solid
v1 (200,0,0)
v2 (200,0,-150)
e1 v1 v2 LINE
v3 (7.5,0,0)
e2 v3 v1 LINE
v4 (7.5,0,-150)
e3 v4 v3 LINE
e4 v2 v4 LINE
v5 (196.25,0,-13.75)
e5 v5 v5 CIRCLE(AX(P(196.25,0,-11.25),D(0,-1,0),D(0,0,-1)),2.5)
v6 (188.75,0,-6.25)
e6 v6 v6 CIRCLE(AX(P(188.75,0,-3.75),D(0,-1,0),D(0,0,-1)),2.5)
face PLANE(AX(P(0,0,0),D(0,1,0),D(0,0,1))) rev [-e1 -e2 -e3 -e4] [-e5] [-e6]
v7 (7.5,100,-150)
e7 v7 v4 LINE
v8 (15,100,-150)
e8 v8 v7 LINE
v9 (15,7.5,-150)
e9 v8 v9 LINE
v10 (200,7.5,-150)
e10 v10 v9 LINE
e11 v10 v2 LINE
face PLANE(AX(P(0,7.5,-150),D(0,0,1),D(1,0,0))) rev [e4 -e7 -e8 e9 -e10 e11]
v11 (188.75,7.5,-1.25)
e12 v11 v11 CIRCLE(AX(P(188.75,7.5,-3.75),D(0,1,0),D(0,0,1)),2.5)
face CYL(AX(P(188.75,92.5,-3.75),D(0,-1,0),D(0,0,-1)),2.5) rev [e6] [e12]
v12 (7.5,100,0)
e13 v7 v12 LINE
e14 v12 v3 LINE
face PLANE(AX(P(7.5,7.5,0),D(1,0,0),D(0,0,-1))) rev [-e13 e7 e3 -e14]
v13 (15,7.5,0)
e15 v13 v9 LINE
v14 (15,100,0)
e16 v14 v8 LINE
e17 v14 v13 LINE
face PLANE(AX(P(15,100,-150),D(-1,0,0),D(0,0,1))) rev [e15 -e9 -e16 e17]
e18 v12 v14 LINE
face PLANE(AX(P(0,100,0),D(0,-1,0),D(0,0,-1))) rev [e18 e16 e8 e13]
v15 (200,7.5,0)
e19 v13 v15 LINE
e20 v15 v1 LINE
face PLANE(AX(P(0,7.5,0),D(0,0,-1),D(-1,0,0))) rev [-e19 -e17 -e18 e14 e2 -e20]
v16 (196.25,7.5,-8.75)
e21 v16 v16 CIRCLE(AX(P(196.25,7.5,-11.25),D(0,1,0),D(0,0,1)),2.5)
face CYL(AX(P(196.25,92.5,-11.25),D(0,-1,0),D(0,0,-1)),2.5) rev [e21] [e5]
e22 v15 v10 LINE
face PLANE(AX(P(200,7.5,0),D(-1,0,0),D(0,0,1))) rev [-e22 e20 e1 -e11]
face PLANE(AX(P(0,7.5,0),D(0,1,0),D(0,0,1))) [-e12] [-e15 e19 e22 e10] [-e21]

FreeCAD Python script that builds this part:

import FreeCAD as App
import Part
import Sketcher
from FreeCAD import Vector
Q = App.Units.Quantity

doc = App.newDocument("Part")
body = doc.addObject("PartDesign::Body", "Body")

sketch1 = body.newObject("Sketcher::SketchObject", "Sketch")
sketch1.AttachmentSupport = (doc.getObject("XZ_Plane"), [""])
sketch1.MapMode = "FlatFace"
sketch1.addGeometry([
    Part.LineSegment(Vector(7.5, -150, 0), Vector(7.5, 0, 0)),
    Part.LineSegment(Vector(7.5, 0, 0), Vector(200, 0, 0)),
    Part.LineSegment(Vector(200, 0, 0), Vector(200, -150, 0)),
    Part.LineSegment(Vector(200, -150, 0), Vector(7.5, -150, 0)),
], False)
sketch1.addConstraint([
    Sketcher.Constraint("Coincident", 0, 2, 1, 1),
    Sketcher.Constraint("Coincident", 1, 2, 2, 1),
    Sketcher.Constraint("Coincident", 2, 2, 3, 1),
    Sketcher.Constraint("Coincident", 3, 2, 0, 1),
    Sketcher.Constraint("Vertical", 0),
    Sketcher.Constraint("Horizontal", 1),
    Sketcher.Constraint("Vertical", 2),
    Sketcher.Constraint("Horizontal", 3),
    Sketcher.Constraint("PointOnObject", 0, 2, -1),
    Sketcher.Constraint("DistanceY", 0, 1, 0, 2, Q("150 mm")),
    Sketcher.Constraint("DistanceX", 1, 1, 1, 2, Q("192.5 mm")),
    Sketcher.Constraint("DistanceX", -1, 1, 1, 2, Q("200 mm")),
])
pad1 = body.newObject("PartDesign::Pad", "Pad")
pad1.Profile = sketch1
pad1.Length = 7.5
pad1.Reversed = True

sketch2 = body.newObject("Sketcher::SketchObject", "Sketch001")
sketch2.AttachmentSupport = (doc.getObject("XZ_Plane"), [""])
sketch2.MapMode = "FlatFace"
sketch2.AttachmentOffset = App.Placement(Vector(0, 0, -7.5), App.Rotation())
sketch2.addGeometry([
    Part.LineSegment(Vector(7.5, -150, 0), Vector(7.5, 0, 0)),
    Part.LineSegment(Vector(7.5, 0, 0), Vector(15, 0, 0)),
    Part.LineSegment(Vector(15, 0, 0), Vector(15, -150, 0)),
    Part.LineSegment(Vector(15, -150, 0), Vector(7.5, -150, 0)),
], False)
sketch2.addConstraint([
    Sketcher.Constraint("Coincident", 0, 2, 1, 1),
    Sketcher.Constraint("Coincident", 1, 2, 2, 1),
    Sketcher.Constraint("Coincident", 2, 2, 3, 1),
    Sketcher.Constraint("Coincident", 3, 2, 0, 1),
    Sketcher.Constraint("Vertical", 0),
    Sketcher.Constraint("Horizontal", 1),
    Sketcher.Constraint("Vertical", 2),
    Sketcher.Constraint("Horizontal", 3),
    Sketcher.Constraint("PointOnObject", 0, 2, -1),
    Sketcher.Constraint("DistanceY", 0, 1, 0, 2, Q("150 mm")),
    Sketcher.Constraint("DistanceX", 1, 1, 1, 2, Q("7.5 mm")),
    Sketcher.Constraint("DistanceX", -1, 1, 1, 2, Q("15 mm")),
])
pad2 = body.newObject("PartDesign::Pad", "Pad001")
pad2.Profile = sketch2
pad2.Length = 92.5
pad2.Reversed = True

sketch3 = body.newObject("Sketcher::SketchObject", "Sketch002")
sketch3.AttachmentSupport = (doc.getObject("XZ_Plane"), [""])
sketch3.MapMode = "FlatFace"
sketch3.addGeometry([
    Part.Circle(Vector(188.75, -3.75, 0), Vector(0, 0, 1), 2.5),
    Part.Circle(Vector(196.25, -11.25, 0), Vector(0, 0, 1), 2.5),
], False)
sketch3.addConstraint([
    Sketcher.Constraint("Equal", 0, 1),
    Sketcher.Constraint("Diameter", 0, Q("5 mm")),
    Sketcher.Constraint("DistanceX", 0, 3, 1, 3, Q("7.5 mm")),
    Sketcher.Constraint("DistanceY", 1, 3, 0, 3, Q("7.5 mm")),
    Sketcher.Constraint("DistanceX", -1, 1, 0, 3, Q("188.75 mm")),
    Sketcher.Constraint("DistanceY", 0, 3, -1, 1, Q("3.75 mm")),
])
pocket1 = body.newObject("PartDesign::Pocket", "Pocket")
pocket1.Profile = sketch3
pocket1.Length = 92.5

doc.recompute()
